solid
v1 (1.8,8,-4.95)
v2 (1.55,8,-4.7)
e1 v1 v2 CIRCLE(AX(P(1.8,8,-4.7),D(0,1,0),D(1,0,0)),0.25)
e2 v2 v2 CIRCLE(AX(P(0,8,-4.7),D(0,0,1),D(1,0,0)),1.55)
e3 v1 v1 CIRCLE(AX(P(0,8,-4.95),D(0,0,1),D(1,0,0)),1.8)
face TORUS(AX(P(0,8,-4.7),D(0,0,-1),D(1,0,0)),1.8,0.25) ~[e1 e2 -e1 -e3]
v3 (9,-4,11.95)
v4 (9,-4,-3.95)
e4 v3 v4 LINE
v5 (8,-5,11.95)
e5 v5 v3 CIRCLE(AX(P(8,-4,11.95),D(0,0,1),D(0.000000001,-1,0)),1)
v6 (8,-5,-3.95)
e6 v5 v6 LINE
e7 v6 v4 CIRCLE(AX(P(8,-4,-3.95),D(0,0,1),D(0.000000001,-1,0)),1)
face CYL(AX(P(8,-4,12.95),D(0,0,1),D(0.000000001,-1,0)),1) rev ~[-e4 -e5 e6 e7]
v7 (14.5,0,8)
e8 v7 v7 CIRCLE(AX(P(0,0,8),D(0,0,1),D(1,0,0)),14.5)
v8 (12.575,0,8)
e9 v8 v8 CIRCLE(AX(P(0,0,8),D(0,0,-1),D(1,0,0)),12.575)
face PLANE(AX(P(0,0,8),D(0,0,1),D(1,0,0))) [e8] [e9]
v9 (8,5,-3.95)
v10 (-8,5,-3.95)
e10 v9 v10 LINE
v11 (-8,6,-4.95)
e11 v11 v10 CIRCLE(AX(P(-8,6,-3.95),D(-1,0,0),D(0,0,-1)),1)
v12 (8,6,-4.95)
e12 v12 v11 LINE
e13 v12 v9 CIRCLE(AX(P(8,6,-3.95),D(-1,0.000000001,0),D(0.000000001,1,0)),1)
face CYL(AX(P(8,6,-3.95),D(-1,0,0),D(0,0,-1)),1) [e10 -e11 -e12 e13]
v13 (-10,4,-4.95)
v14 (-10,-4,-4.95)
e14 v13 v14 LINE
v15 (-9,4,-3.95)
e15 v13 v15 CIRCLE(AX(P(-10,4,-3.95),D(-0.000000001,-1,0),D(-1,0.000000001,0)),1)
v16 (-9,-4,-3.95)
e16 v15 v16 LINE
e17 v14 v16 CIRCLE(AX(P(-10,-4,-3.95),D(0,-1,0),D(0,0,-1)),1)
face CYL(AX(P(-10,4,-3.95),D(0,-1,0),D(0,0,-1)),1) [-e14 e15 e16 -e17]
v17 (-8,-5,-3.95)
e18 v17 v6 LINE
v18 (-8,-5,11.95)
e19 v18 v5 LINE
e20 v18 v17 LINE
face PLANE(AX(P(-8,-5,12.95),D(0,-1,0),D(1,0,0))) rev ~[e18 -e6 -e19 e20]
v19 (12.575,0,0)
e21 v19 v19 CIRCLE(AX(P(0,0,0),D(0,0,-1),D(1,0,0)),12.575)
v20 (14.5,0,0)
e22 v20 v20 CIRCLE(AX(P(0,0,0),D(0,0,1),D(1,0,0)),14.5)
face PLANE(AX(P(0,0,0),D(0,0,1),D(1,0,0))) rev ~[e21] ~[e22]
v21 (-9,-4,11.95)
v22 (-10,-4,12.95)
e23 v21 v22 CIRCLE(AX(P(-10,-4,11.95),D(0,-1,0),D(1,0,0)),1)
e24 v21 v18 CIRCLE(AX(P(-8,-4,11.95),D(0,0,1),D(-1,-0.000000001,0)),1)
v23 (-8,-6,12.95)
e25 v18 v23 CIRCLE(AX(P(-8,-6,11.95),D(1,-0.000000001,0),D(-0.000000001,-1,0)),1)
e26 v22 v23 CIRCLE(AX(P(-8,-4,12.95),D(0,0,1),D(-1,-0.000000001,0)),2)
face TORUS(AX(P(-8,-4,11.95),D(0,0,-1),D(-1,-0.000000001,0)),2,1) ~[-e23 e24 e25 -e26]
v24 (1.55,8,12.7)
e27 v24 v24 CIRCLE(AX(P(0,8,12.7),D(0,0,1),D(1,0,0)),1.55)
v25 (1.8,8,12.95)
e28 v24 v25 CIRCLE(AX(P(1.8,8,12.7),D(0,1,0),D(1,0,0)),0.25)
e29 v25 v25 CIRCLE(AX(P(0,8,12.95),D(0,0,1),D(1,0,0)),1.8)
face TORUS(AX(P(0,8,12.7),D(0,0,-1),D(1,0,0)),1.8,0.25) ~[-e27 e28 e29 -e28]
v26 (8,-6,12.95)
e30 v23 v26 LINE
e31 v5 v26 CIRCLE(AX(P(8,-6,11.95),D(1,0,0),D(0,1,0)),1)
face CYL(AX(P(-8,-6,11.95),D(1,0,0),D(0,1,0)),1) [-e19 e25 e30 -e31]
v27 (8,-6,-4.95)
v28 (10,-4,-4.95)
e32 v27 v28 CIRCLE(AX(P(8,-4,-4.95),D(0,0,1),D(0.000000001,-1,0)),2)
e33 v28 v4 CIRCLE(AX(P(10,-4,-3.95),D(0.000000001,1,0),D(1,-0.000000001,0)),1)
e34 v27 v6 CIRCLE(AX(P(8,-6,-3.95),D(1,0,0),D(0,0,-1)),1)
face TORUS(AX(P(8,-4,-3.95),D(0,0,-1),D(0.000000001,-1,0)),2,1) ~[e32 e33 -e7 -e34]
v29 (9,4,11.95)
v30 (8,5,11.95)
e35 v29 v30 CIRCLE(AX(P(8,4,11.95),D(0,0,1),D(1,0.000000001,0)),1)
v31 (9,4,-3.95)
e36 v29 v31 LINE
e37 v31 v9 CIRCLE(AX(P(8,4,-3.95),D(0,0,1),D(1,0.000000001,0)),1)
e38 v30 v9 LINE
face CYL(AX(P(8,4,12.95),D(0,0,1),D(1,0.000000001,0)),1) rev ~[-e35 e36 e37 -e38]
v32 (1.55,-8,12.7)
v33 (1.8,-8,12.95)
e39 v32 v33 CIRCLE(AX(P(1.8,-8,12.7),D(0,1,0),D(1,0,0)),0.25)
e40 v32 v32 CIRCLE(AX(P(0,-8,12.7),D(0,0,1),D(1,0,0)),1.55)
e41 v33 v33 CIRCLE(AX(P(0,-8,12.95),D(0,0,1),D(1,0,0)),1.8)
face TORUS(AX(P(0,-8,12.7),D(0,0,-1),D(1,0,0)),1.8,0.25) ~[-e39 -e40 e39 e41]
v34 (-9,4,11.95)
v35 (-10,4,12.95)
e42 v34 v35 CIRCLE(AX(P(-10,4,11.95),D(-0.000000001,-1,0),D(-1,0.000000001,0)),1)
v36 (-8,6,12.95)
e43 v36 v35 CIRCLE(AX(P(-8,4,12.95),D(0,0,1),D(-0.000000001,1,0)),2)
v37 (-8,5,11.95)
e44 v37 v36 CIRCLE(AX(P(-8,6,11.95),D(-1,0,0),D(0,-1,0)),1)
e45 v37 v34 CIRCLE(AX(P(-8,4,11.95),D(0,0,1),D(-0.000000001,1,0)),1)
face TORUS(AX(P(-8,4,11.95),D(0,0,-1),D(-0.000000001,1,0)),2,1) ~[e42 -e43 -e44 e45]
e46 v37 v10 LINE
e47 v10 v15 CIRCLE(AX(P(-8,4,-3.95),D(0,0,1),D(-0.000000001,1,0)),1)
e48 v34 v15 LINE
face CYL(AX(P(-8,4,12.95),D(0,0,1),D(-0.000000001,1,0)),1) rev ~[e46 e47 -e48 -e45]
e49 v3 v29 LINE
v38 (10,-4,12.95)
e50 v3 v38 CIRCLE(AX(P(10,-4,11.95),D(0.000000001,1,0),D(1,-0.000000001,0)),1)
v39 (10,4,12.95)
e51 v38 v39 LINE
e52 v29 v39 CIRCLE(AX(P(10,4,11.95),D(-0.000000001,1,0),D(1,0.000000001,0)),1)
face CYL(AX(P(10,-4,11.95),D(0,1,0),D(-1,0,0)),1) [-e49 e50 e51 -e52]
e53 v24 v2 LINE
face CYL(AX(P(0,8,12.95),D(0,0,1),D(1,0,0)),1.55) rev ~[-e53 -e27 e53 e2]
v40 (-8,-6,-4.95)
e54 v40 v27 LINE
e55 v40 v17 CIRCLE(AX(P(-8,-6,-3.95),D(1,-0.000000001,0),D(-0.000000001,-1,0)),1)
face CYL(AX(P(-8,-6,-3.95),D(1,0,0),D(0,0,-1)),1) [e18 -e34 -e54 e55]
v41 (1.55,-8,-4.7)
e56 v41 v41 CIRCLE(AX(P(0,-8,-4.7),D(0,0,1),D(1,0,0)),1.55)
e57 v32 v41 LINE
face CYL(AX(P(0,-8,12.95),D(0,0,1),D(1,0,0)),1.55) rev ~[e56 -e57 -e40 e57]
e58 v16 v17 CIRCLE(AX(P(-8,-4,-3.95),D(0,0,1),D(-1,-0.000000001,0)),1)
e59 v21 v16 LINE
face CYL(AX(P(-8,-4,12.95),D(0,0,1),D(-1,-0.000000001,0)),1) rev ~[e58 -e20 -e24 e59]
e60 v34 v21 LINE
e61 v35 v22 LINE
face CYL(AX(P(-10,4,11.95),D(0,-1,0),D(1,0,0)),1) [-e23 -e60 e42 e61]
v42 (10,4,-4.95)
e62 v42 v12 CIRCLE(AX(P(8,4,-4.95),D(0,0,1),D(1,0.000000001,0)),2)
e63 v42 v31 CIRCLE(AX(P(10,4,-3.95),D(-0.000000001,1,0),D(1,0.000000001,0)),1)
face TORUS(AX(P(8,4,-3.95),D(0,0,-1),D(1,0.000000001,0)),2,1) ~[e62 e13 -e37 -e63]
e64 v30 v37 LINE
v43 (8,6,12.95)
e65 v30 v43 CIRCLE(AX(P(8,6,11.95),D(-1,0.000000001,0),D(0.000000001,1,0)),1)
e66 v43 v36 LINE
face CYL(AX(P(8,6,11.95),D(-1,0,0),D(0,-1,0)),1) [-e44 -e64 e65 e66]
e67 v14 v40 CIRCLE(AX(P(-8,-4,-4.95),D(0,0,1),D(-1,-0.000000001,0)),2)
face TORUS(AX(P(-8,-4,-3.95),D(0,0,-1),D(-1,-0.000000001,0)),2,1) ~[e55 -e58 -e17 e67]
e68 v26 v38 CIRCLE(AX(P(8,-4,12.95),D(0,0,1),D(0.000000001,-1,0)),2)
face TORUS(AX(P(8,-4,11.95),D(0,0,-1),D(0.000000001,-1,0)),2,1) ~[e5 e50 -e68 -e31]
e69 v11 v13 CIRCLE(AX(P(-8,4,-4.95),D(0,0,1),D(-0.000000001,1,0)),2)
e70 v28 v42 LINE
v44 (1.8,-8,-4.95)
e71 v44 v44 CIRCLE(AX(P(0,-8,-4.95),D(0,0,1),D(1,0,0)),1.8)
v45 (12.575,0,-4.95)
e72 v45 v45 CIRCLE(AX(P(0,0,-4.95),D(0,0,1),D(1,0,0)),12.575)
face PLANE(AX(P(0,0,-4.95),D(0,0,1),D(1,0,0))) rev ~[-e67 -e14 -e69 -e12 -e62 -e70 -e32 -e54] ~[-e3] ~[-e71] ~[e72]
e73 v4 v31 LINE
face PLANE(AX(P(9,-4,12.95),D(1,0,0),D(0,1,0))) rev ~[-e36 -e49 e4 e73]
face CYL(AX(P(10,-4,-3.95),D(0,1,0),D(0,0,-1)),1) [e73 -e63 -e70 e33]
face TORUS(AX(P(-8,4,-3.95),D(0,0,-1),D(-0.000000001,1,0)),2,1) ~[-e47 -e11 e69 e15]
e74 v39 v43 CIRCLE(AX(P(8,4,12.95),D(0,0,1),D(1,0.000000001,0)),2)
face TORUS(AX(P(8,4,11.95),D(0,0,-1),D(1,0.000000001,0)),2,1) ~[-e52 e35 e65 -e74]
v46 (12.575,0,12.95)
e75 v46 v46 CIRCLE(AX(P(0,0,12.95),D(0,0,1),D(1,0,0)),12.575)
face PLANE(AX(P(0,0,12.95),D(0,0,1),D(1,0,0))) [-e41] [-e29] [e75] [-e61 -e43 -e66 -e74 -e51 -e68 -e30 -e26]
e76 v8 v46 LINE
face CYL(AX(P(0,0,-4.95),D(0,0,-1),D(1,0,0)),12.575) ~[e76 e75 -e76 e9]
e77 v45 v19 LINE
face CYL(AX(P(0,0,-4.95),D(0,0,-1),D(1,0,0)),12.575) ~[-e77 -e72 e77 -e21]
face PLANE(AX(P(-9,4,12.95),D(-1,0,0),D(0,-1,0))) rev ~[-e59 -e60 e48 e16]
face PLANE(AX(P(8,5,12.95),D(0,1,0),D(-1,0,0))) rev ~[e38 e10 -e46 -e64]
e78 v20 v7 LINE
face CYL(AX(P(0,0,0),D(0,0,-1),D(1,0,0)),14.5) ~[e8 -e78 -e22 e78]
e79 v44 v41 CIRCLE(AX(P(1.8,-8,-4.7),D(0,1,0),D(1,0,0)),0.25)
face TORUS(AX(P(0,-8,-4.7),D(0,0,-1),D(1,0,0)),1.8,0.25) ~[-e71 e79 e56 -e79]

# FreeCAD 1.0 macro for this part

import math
import FreeCAD as App
import Part
import Sketcher
Q = App.Units.Quantity


def edges_at(feature, points):
    """Names of the edges that pass closest to the given points."""
    edges = feature.Shape.Edges
    near = lambda p: min(range(len(edges)), key=lambda i: edges[i].distToShape(Part.Vertex(*p))[0])
    return sorted({f"Edge{near(p) + 1}" for p in points})

doc = App.newDocument("Part")
body = doc.addObject("PartDesign::Body", "Body")

# Sketch on XY plane
sketch1 = doc.addObject("Sketcher::SketchObject", "Sketch")
body.addObject(sketch1)
sketch1.AttachmentSupport = (doc.XY_Plane, [""])
sketch1.MapMode = "FlatFace"
sketch1.addGeometry(Part.Circle(App.Vector(0, 0, 0), App.Vector(0, 0, 1), 14.5), False)
sketch1.addConstraint([
    Sketcher.Constraint("Coincident", 0, 3, -1, 1),
    Sketcher.Constraint("Diameter", 0, Q("29 mm")),
])
pad1 = doc.addObject("PartDesign::Pad", "Pad")
body.addObject(pad1)
pad1.Profile = sketch1
pad1.Length = 8

# Sketch on XY plane
sketch2 = doc.addObject("Sketcher::SketchObject", "Sketch001")
body.addObject(sketch2)
sketch2.AttachmentSupport = (doc.XY_Plane, [""])
sketch2.MapMode = "FlatFace"
sketch2.AttachmentOffset = App.Placement(App.Vector(0, 0, 8), App.Rotation())
sketch2.addGeometry(Part.Circle(App.Vector(0, 0, 0), App.Vector(0, 0, 1), 12.575), False)
sketch2.addConstraint([
    Sketcher.Constraint("Coincident", 0, 3, -1, 1),
    Sketcher.Constraint("Diameter", 0, Q("25.15 mm")),
])
pad2 = doc.addObject("PartDesign::Pad", "Pad001")
body.addObject(pad2)
pad2.Profile = sketch2
pad2.Type = "TwoLengths"
pad2.Length = 4.95
pad2.Length2 = 12.95

# Sketch on XY plane
sketch3 = doc.addObject("Sketcher::SketchObject", "Sketch002")
body.addObject(sketch3)
sketch3.AttachmentSupport = (doc.XY_Plane, [""])
sketch3.MapMode = "FlatFace"
sketch3.AttachmentOffset = App.Placement(App.Vector(0, 0, 12.95), App.Rotation())
sketch3.addGeometry([
    Part.Circle(App.Vector(0, 8, 0), App.Vector(0, 0, 1), 1.55),  # 0
    Part.Circle(App.Vector(0, -8, 0), App.Vector(0, 0, 1), 1.55),  # 1
    Part.LineSegment(App.Vector(-8, -5, 0), App.Vector(8, -5, 0)),  # 2
    Part.ArcOfCircle(Part.Circle(App.Vector(8, -4, 0), App.Vector(0, 0, 1), 1), math.radians(-90), math.radians(0)),  # 3
    Part.LineSegment(App.Vector(9, -4, 0), App.Vector(9, 4, 0)),  # 4
    Part.ArcOfCircle(Part.Circle(App.Vector(8, 4, 0), App.Vector(0, 0, 1), 1), math.radians(0), math.radians(90)),  # 5
    Part.LineSegment(App.Vector(8, 5, 0), App.Vector(-8, 5, 0)),  # 6
    Part.ArcOfCircle(Part.Circle(App.Vector(-8, 4, 0), App.Vector(0, 0, 1), 1), math.radians(90), math.radians(180)),  # 7
    Part.LineSegment(App.Vector(-9, 4, 0), App.Vector(-9, -4, 0)),  # 8
    Part.ArcOfCircle(Part.Circle(App.Vector(-8, -4, 0), App.Vector(0, 0, 1), 1), math.radians(-180), math.radians(-90)),  # 9
], False)
sketch3.addConstraint([
    Sketcher.Constraint("Tangent", 2, 2, 3, 1),
    Sketcher.Constraint("Tangent", 3, 2, 4, 1),
    Sketcher.Constraint("Tangent", 4, 2, 5, 1),
    Sketcher.Constraint("Tangent", 5, 2, 6, 1),
    Sketcher.Constraint("Tangent", 6, 2, 7, 1),
    Sketcher.Constraint("Tangent", 7, 2, 8, 1),
    Sketcher.Constraint("Tangent", 8, 2, 9, 1),
    Sketcher.Constraint("Tangent", 9, 2, 2, 1),
    Sketcher.Constraint("Horizontal", 2),
    Sketcher.Constraint("Vertical", 4),
    Sketcher.Constraint("Horizontal", 6),
    Sketcher.Constraint("Vertical", 8),
    Sketcher.Constraint("Equal", 0, 1),
    Sketcher.Constraint("Equal", 3, 5),
    Sketcher.Constraint("Equal", 5, 7),
    Sketcher.Constraint("Equal", 7, 9),
    Sketcher.Constraint("Symmetric", 0, 3, 1, 3, -1, 1),
    Sketcher.Constraint("Symmetric", 3, 3, 7, 3, -1, 1),
    Sketcher.Constraint("PointOnObject", 0, 3, -2),
    Sketcher.Constraint("Radius", 3, Q("1 mm")),
    Sketcher.Constraint("Diameter", 0, Q("3.1 mm")),
    Sketcher.Constraint("DistanceX", 2, 1, 2, 2, Q("16 mm")),
    Sketcher.Constraint("DistanceY", 4, 1, 4, 2, Q("8 mm")),
    Sketcher.Constraint("DistanceY", -1, 1, 0, 3, Q("8 mm")),
])
pocket1 = doc.addObject("PartDesign::Pocket", "Pocket")
body.addObject(pocket1)
pocket1.Profile = sketch3
pocket1.Type = "ThroughAll"
doc.recompute()

fillet = doc.addObject("PartDesign::Fillet", "Fillet")
body.addObject(fillet)
fillet.Base = (pocket1, edges_at(pocket1, [
    (8.707, 4.707, -4.95),
    (9, 0, -4.95),
    (8.707, -4.707, -4.95),
    (0, -5, -4.95),
    (-8.707, -4.707, -4.95),
    (-9, 0, -4.95),
    (-8.707, 4.707, -4.95),
    (0, 5, -4.95),
    (8.707, 4.707, 12.95),
    (0, 5, 12.95),
    (-8.707, 4.707, 12.95),
    (-9, 0, 12.95),
    (-8.707, -4.707, 12.95),
    (0, -5, 12.95),
    (8.707, -4.707, 12.95),
    (9, 0, 12.95),
]))
fillet.Radius = 1
doc.recompute()

fillet2 = doc.addObject("PartDesign::Fillet", "Fillet001")
body.addObject(fillet2)
fillet2.Base = (fillet, edges_at(fillet, [
    (-1.55, -8, -4.95),
    (-1.55, -8, 12.95),
    (-1.55, 8, -4.95),
    (-1.55, 8, 12.95),
]))
fillet2.Radius = 0.25

doc.recompute()
